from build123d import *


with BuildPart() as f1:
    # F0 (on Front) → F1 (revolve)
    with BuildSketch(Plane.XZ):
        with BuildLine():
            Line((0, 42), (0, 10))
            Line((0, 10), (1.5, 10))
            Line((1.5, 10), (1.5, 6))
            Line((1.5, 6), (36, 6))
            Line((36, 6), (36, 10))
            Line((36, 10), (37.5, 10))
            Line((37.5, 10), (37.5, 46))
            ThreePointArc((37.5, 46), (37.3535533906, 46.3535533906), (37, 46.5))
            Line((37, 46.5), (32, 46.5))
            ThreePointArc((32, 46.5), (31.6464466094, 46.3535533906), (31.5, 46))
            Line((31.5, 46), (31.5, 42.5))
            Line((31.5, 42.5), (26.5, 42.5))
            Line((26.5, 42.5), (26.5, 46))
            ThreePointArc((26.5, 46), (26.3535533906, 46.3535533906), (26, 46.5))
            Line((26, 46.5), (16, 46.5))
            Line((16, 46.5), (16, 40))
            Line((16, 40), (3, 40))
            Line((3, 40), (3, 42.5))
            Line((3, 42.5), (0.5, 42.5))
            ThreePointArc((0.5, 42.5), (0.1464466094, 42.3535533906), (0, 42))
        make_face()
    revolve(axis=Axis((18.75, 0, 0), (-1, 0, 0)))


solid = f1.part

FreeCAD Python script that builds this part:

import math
import FreeCAD as App
import Part
import Sketcher

doc = App.newDocument("Part")
body = doc.addObject("PartDesign::Body", "Body")

# Sketch on XZ plane
sketch1 = body.newObject("Sketcher::SketchObject", "Sketch")
sketch1.AttachmentSupport = (doc.getObject("XZ_Plane"), [""])
sketch1.MapMode = "FlatFace"
sketch1.addGeometry(Part.LineSegment(App.Vector(0, 42, 0), App.Vector(0, 10, 0)), False)
sketch1.addGeometry(Part.LineSegment(App.Vector(0, 10, 0), App.Vector(1.5, 10, 0)), False)
sketch1.addGeometry(Part.LineSegment(App.Vector(1.5, 10, 0), App.Vector(1.5, 6, 0)), False)
sketch1.addGeometry(Part.LineSegment(App.Vector(1.5, 6, 0), App.Vector(36, 6, 0)), False)
sketch1.addGeometry(Part.LineSegment(App.Vector(36, 6, 0), App.Vector(36, 10, 0)), False)
sketch1.addGeometry(Part.LineSegment(App.Vector(36, 10, 0), App.Vector(37.5, 10, 0)), False)
sketch1.addGeometry(Part.LineSegment(App.Vector(37.5, 10, 0), App.Vector(37.5, 46, 0)), False)
sketch1.addGeometry(Part.ArcOfCircle(Part.Circle(App.Vector(37, 46, 0), App.Vector(0, 0, 1), 0.5), math.radians(0), math.radians(90)), False)
sketch1.addGeometry(Part.LineSegment(App.Vector(37, 46.5, 0), App.Vector(32, 46.5, 0)), False)
sketch1.addGeometry(Part.ArcOfCircle(Part.Circle(App.Vector(32, 46, 0), App.Vector(0, 0, 1), 0.5), math.radians(90), math.radians(180)), False)
sketch1.addGeometry(Part.LineSegment(App.Vector(31.5, 46, 0), App.Vector(31.5, 42.5, 0)), False)
sketch1.addGeometry(Part.LineSegment(App.Vector(31.5, 42.5, 0), App.Vector(26.5, 42.5, 0)), False)
sketch1.addGeometry(Part.LineSegment(App.Vector(26.5, 42.5, 0), App.Vector(26.5, 46, 0)), False)
sketch1.addGeometry(Part.ArcOfCircle(Part.Circle(App.Vector(26, 46, 0), App.Vector(0, 0, 1), 0.5), math.radians(0), math.radians(90)), False)
sketch1.addGeometry(Part.LineSegment(App.Vector(26, 46.5, 0), App.Vector(16, 46.5, 0)), False)
sketch1.addGeometry(Part.LineSegment(App.Vector(16, 46.5, 0), App.Vector(16, 40, 0)), False)
sketch1.addGeometry(Part.LineSegment(App.Vector(16, 40, 0), App.Vector(3, 40, 0)), False)
sketch1.addGeometry(Part.LineSegment(App.Vector(3, 40, 0), App.Vector(3, 42.5, 0)), False)
sketch1.addGeometry(Part.LineSegment(App.Vector(3, 42.5, 0), App.Vector(0.5, 42.5, 0)), False)
sketch1.addGeometry(Part.ArcOfCircle(Part.Circle(App.Vector(0.5, 42, 0), App.Vector(0, 0, 1), 0.5), math.radians(90), math.radians(180)), False)
sketch1.addConstraint(Sketcher.Constraint("Coincident", 0, 2, 1, 1))
sketch1.addConstraint(Sketcher.Constraint("Coincident", 1, 2, 2, 1))
sketch1.addConstraint(Sketcher.Constraint("Coincident", 2, 2, 3, 1))
sketch1.addConstraint(Sketcher.Constraint("Coincident", 3, 2, 4, 1))
sketch1.addConstraint(Sketcher.Constraint("Coincident", 4, 2, 5, 1))
sketch1.addConstraint(Sketcher.Constraint("Coincident", 5, 2, 6, 1))
sketch1.addConstraint(Sketcher.Constraint("Tangent", 6, 2, 7, 1))
sketch1.addConstraint(Sketcher.Constraint("Tangent", 7, 2, 8, 1))
sketch1.addConstraint(Sketcher.Constraint("Tangent", 8, 2, 9, 1))
sketch1.addConstraint(Sketcher.Constraint("Tangent", 9, 2, 10, 1))
sketch1.addConstraint(Sketcher.Constraint("Coincident", 10, 2, 11, 1))
sketch1.addConstraint(Sketcher.Constraint("Coincident", 11, 2, 12, 1))
sketch1.addConstraint(Sketcher.Constraint("Tangent", 12, 2, 13, 1))
sketch1.addConstraint(Sketcher.Constraint("Tangent", 13, 2, 14, 1))
sketch1.addConstraint(Sketcher.Constraint("Coincident", 14, 2, 15, 1))
sketch1.addConstraint(Sketcher.Constraint("Coincident", 15, 2, 16, 1))
sketch1.addConstraint(Sketcher.Constraint("Coincident", 16, 2, 17, 1))
sketch1.addConstraint(Sketcher.Constraint("Coincident", 17, 2, 18, 1))
sketch1.addConstraint(Sketcher.Constraint("Tangent", 18, 2, 19, 1))
sketch1.addConstraint(Sketcher.Constraint("Tangent", 19, 2, 0, 1))
sketch1.addConstraint(Sketcher.Constraint("Vertical", 0))
sketch1.addConstraint(Sketcher.Constraint("Horizontal", 1))
sketch1.addConstraint(Sketcher.Constraint("Vertical", 2))
sketch1.addConstraint(Sketcher.Constraint("Horizontal", 3))
sketch1.addConstraint(Sketcher.Constraint("Vertical", 4))
sketch1.addConstraint(Sketcher.Constraint("Horizontal", 5))
sketch1.addConstraint(Sketcher.Constraint("Vertical", 6))
sketch1.addConstraint(Sketcher.Constraint("Horizontal", 8))
sketch1.addConstraint(Sketcher.Constraint("Vertical", 10))
sketch1.addConstraint(Sketcher.Constraint("Horizontal", 11))
sketch1.addConstraint(Sketcher.Constraint("Vertical", 12))
sketch1.addConstraint(Sketcher.Constraint("Horizontal", 14))
sketch1.addConstraint(Sketcher.Constraint("Vertical", 15))
sketch1.addConstraint(Sketcher.Constraint("Horizontal", 16))
sketch1.addConstraint(Sketcher.Constraint("Vertical", 17))
sketch1.addConstraint(Sketcher.Constraint("Horizontal", 18))
sketch1.addConstraint(Sketcher.Constraint("Equal", 7, 9))
sketch1.addConstraint(Sketcher.Constraint("Equal", 9, 13))
sketch1.addConstraint(Sketcher.Constraint("Equal", 13, 19))
sketch1.addConstraint(Sketcher.Constraint("PointOnObject", 0, 2, -2))
sketch1.addConstraint(Sketcher.Constraint("Horizontal", 9, 3, 13, 3))
sketch1.addConstraint(Sketcher.Constraint("Horizontal", 1, 2, 4, 2))
sketch1.addConstraint(Sketcher.Constraint("Horizontal", 11, 2, 17, 2))
sketch1.addConstraint(Sketcher.Constraint("Equal", 1, 5))
sketch1.addConstraint(Sketcher.Constraint("Equal", 8, 11))
sketch1.addConstraint(Sketcher.Constraint("Equal", 18, 17))
sketch1.addConstraint(Sketcher.Constraint("Radius", 7, 0.5))
sketch1.addConstraint(Sketcher.Constraint("DistanceX", 8, 2, 8, 1, 5.0))
sketch1.addConstraint(Sketcher.Constraint("DistanceX", 14, 2, 14, 1, 10.0))
sketch1.addConstraint(Sketcher.Constraint("DistanceX", 16, 2, 16, 1, 13.0))
sketch1.addConstraint(Sketcher.Constraint("DistanceY", 0, 2, 0, 1, 32.0))
sketch1.addConstraint(Sketcher.Constraint("DistanceY", 2, 2, 2, 1, 4.0))
sketch1.addConstraint(Sketcher.Constraint("DistanceY", 6, 1, 6, 2, 36.0))
sketch1.addConstraint(Sketcher.Constraint("DistanceX", 1, 1, 1, 2, 1.5))
sketch1.addConstraint(Sketcher.Constraint("DistanceX", 3, 1, 3, 2, 34.5))
sketch1.addConstraint(Sketcher.Constraint("DistanceY", -1, 1, 7, 3, 46.0))
revolution = body.newObject("PartDesign::Revolution", "Revolution")
revolution.Profile = sketch1
revolution.ReferenceAxis = (sketch1, ["H_Axis"])
revolution.Angle = 360

doc.recompute()
